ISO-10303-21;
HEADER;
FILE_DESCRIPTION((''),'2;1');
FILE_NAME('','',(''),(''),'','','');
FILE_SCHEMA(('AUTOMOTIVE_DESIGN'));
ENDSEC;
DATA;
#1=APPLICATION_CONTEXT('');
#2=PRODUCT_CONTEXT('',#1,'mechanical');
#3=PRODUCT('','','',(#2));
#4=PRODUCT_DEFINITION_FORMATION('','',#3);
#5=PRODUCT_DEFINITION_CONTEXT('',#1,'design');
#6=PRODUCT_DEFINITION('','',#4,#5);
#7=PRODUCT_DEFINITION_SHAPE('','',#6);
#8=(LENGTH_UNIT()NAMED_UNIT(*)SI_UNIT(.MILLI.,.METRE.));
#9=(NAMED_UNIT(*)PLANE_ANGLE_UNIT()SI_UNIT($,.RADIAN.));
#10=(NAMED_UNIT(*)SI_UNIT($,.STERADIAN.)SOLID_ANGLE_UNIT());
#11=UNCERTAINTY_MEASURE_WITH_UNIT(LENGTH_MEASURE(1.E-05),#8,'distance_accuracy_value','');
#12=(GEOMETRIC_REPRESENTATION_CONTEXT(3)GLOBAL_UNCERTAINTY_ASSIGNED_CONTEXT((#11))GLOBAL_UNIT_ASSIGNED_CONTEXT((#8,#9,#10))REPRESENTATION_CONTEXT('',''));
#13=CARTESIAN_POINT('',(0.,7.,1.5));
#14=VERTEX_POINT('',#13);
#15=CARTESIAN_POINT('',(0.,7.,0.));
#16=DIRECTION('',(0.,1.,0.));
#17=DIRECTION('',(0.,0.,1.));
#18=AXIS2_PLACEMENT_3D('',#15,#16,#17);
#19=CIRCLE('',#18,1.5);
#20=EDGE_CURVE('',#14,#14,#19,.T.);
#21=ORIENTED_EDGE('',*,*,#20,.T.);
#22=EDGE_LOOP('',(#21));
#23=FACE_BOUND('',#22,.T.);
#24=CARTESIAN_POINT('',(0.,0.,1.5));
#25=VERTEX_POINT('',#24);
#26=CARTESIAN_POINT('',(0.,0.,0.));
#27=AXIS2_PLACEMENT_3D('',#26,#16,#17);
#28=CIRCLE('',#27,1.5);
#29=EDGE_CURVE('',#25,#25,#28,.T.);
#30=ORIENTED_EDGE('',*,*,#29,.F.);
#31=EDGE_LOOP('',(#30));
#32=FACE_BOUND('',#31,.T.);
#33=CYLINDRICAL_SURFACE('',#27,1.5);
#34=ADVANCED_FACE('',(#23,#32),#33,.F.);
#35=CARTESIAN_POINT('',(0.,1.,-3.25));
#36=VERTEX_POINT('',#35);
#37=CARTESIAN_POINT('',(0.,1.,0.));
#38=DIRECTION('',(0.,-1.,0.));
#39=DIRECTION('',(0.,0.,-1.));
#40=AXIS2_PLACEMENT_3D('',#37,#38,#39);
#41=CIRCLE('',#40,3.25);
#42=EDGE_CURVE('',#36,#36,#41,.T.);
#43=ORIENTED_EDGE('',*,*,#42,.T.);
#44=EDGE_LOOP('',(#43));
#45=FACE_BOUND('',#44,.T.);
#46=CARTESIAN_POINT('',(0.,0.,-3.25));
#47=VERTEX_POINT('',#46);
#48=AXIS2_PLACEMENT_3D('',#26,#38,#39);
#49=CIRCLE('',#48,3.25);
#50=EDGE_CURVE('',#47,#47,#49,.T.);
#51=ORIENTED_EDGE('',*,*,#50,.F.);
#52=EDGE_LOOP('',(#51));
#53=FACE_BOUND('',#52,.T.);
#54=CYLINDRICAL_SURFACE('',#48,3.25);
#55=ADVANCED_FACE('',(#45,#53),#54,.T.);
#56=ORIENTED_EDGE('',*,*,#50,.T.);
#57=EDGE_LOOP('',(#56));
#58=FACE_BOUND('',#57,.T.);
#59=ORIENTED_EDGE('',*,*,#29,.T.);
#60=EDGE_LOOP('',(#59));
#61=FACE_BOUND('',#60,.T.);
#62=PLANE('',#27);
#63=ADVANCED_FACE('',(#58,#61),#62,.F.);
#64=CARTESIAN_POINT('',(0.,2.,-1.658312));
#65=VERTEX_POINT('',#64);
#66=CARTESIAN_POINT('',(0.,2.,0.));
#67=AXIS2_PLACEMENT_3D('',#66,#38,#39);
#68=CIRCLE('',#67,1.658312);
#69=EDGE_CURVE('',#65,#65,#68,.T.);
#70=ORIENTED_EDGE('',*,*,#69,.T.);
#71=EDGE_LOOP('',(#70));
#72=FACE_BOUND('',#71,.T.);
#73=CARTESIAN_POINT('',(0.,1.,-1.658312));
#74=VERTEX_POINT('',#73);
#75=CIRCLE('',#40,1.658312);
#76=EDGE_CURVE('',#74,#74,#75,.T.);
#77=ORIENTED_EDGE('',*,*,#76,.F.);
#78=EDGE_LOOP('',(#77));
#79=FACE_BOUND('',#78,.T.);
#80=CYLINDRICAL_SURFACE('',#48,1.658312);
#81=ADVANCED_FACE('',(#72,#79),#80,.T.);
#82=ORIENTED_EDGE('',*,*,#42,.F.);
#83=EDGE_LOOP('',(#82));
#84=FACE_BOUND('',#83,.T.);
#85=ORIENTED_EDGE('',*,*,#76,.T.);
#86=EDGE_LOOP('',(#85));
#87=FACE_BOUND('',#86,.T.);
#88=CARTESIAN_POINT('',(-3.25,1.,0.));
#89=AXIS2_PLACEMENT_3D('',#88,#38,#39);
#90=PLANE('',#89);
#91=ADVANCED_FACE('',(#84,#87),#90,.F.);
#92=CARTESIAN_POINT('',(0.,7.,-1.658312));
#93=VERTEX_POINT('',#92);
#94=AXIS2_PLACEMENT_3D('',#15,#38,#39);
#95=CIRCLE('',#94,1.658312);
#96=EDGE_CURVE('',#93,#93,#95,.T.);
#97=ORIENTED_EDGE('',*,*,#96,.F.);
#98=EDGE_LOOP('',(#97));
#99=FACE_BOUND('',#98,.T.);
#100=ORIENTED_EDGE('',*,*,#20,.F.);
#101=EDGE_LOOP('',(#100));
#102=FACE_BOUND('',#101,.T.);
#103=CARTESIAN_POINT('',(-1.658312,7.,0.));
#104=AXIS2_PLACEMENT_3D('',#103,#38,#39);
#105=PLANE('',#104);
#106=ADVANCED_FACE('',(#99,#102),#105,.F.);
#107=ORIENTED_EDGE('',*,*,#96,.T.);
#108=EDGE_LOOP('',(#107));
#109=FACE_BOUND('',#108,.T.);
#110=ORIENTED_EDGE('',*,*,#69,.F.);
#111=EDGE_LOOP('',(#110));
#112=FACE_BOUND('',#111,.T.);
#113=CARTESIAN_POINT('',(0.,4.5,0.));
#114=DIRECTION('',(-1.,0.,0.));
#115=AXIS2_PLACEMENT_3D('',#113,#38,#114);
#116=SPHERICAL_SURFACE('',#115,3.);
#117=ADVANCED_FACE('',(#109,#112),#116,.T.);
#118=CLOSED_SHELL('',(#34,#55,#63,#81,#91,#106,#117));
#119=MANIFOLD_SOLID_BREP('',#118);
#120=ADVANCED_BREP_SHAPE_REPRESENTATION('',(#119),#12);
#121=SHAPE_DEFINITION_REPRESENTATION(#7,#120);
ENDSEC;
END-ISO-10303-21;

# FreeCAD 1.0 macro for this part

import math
import FreeCAD as App
import Part
import Sketcher
Q = App.Units.Quantity

doc = App.newDocument("Part")
body = doc.addObject("PartDesign::Body", "Body")

sketch1 = body.newObject("Sketcher::SketchObject", "Sketch")
sketch1.AttachmentSupport = (doc.getObject("XY_Plane"), [""])
sketch1.MapMode = "FlatFace"
sketch1.addGeometry(Part.LineSegment(App.Vector(-3.2, 0, 0), App.Vector(0, 0, 0)), False)
sketch1.addGeometry(Part.LineSegment(App.Vector(0, 0, 0), App.Vector(0, 7, 0)), False)
sketch1.addGeometry(Part.LineSegment(App.Vector(0, 7, 0), App.Vector(-1.7, 7, 0)), False)
sketch1.addGeometry(Part.ArcOfCircle(Part.Circle(App.Vector(0, 4.5, 0), App.Vector(0, 0, 1), 3), math.radians(124), math.radians(236)), False)
sketch1.addGeometry(Part.LineSegment(App.Vector(-1.7, 2, 0), App.Vector(-1.7, 1, 0)), False)
sketch1.addGeometry(Part.LineSegment(App.Vector(-1.7, 1, 0), App.Vector(-3.2, 1, 0)), False)
sketch1.addGeometry(Part.LineSegment(App.Vector(-3.2, 1, 0), App.Vector(-3.2, 0, 0)), False)
sketch1.addConstraint(Sketcher.Constraint("Coincident", 0, 2, 1, 1))
sketch1.addConstraint(Sketcher.Constraint("Coincident", 1, 2, 2, 1))
sketch1.addConstraint(Sketcher.Constraint("Coincident", 2, 2, 3, 1))
sketch1.addConstraint(Sketcher.Constraint("Coincident", 3, 2, 4, 1))
sketch1.addConstraint(Sketcher.Constraint("Coincident", 4, 2, 5, 1))
sketch1.addConstraint(Sketcher.Constraint("Coincident", 5, 2, 6, 1))
sketch1.addConstraint(Sketcher.Constraint("Coincident", 6, 2, 0, 1))
sketch1.addConstraint(Sketcher.Constraint("Horizontal", 0))
sketch1.addConstraint(Sketcher.Constraint("Vertical", 1))
sketch1.addConstraint(Sketcher.Constraint("Horizontal", 2))
sketch1.addConstraint(Sketcher.Constraint("Vertical", 4))
sketch1.addConstraint(Sketcher.Constraint("Horizontal", 5))
sketch1.addConstraint(Sketcher.Constraint("Vertical", 6))
sketch1.addConstraint(Sketcher.Constraint("Coincident", 0, 2, -1, 1))
sketch1.addConstraint(Sketcher.Constraint("PointOnObject", 3, 3, -2))
sketch1.addConstraint(Sketcher.Constraint("Vertical", 2, 2, 3, 2))
sketch1.addConstraint(Sketcher.Constraint("Equal", 4, 6))
sketch1.addConstraint(Sketcher.Constraint("Radius", 3, Q("3 mm")))
sketch1.addConstraint(Sketcher.Constraint("DistanceY", 1, 1, 1, 2, Q("7 mm")))
sketch1.addConstraint(Sketcher.Constraint("DistanceY", 4, 2, 4, 1, Q("1 mm")))
sketch1.addConstraint(Sketcher.Constraint("DistanceX", 0, 1, 0, 2, Q("3.25 mm")))
revolution = body.newObject("PartDesign::Revolution", "Revolution")
revolution.Profile = sketch1
revolution.ReferenceAxis = (sketch1, ["V_Axis"])
revolution.Angle = 360

sketch2 = body.newObject("Sketcher::SketchObject", "Sketch001")
sketch2.AttachmentSupport = (doc.getObject("XZ_Plane"), [""])
sketch2.MapMode = "FlatFace"
sketch2.AttachmentOffset = App.Placement(App.Vector(0, 0, -7), App.Rotation())
sketch2.addGeometry(Part.Circle(App.Vector(0, 0, 0), App.Vector(0, 0, 1), 1.5), False)
sketch2.addConstraint(Sketcher.Constraint("Coincident", 0, 3, -1, 1))
sketch2.addConstraint(Sketcher.Constraint("Diameter", 0, Q("3 mm")))
pocket1 = body.newObject("PartDesign::Pocket", "Pocket")
pocket1.Profile = sketch2
pocket1.Type = "ThroughAll"
pocket1.Reversed = True

doc.recompute()
